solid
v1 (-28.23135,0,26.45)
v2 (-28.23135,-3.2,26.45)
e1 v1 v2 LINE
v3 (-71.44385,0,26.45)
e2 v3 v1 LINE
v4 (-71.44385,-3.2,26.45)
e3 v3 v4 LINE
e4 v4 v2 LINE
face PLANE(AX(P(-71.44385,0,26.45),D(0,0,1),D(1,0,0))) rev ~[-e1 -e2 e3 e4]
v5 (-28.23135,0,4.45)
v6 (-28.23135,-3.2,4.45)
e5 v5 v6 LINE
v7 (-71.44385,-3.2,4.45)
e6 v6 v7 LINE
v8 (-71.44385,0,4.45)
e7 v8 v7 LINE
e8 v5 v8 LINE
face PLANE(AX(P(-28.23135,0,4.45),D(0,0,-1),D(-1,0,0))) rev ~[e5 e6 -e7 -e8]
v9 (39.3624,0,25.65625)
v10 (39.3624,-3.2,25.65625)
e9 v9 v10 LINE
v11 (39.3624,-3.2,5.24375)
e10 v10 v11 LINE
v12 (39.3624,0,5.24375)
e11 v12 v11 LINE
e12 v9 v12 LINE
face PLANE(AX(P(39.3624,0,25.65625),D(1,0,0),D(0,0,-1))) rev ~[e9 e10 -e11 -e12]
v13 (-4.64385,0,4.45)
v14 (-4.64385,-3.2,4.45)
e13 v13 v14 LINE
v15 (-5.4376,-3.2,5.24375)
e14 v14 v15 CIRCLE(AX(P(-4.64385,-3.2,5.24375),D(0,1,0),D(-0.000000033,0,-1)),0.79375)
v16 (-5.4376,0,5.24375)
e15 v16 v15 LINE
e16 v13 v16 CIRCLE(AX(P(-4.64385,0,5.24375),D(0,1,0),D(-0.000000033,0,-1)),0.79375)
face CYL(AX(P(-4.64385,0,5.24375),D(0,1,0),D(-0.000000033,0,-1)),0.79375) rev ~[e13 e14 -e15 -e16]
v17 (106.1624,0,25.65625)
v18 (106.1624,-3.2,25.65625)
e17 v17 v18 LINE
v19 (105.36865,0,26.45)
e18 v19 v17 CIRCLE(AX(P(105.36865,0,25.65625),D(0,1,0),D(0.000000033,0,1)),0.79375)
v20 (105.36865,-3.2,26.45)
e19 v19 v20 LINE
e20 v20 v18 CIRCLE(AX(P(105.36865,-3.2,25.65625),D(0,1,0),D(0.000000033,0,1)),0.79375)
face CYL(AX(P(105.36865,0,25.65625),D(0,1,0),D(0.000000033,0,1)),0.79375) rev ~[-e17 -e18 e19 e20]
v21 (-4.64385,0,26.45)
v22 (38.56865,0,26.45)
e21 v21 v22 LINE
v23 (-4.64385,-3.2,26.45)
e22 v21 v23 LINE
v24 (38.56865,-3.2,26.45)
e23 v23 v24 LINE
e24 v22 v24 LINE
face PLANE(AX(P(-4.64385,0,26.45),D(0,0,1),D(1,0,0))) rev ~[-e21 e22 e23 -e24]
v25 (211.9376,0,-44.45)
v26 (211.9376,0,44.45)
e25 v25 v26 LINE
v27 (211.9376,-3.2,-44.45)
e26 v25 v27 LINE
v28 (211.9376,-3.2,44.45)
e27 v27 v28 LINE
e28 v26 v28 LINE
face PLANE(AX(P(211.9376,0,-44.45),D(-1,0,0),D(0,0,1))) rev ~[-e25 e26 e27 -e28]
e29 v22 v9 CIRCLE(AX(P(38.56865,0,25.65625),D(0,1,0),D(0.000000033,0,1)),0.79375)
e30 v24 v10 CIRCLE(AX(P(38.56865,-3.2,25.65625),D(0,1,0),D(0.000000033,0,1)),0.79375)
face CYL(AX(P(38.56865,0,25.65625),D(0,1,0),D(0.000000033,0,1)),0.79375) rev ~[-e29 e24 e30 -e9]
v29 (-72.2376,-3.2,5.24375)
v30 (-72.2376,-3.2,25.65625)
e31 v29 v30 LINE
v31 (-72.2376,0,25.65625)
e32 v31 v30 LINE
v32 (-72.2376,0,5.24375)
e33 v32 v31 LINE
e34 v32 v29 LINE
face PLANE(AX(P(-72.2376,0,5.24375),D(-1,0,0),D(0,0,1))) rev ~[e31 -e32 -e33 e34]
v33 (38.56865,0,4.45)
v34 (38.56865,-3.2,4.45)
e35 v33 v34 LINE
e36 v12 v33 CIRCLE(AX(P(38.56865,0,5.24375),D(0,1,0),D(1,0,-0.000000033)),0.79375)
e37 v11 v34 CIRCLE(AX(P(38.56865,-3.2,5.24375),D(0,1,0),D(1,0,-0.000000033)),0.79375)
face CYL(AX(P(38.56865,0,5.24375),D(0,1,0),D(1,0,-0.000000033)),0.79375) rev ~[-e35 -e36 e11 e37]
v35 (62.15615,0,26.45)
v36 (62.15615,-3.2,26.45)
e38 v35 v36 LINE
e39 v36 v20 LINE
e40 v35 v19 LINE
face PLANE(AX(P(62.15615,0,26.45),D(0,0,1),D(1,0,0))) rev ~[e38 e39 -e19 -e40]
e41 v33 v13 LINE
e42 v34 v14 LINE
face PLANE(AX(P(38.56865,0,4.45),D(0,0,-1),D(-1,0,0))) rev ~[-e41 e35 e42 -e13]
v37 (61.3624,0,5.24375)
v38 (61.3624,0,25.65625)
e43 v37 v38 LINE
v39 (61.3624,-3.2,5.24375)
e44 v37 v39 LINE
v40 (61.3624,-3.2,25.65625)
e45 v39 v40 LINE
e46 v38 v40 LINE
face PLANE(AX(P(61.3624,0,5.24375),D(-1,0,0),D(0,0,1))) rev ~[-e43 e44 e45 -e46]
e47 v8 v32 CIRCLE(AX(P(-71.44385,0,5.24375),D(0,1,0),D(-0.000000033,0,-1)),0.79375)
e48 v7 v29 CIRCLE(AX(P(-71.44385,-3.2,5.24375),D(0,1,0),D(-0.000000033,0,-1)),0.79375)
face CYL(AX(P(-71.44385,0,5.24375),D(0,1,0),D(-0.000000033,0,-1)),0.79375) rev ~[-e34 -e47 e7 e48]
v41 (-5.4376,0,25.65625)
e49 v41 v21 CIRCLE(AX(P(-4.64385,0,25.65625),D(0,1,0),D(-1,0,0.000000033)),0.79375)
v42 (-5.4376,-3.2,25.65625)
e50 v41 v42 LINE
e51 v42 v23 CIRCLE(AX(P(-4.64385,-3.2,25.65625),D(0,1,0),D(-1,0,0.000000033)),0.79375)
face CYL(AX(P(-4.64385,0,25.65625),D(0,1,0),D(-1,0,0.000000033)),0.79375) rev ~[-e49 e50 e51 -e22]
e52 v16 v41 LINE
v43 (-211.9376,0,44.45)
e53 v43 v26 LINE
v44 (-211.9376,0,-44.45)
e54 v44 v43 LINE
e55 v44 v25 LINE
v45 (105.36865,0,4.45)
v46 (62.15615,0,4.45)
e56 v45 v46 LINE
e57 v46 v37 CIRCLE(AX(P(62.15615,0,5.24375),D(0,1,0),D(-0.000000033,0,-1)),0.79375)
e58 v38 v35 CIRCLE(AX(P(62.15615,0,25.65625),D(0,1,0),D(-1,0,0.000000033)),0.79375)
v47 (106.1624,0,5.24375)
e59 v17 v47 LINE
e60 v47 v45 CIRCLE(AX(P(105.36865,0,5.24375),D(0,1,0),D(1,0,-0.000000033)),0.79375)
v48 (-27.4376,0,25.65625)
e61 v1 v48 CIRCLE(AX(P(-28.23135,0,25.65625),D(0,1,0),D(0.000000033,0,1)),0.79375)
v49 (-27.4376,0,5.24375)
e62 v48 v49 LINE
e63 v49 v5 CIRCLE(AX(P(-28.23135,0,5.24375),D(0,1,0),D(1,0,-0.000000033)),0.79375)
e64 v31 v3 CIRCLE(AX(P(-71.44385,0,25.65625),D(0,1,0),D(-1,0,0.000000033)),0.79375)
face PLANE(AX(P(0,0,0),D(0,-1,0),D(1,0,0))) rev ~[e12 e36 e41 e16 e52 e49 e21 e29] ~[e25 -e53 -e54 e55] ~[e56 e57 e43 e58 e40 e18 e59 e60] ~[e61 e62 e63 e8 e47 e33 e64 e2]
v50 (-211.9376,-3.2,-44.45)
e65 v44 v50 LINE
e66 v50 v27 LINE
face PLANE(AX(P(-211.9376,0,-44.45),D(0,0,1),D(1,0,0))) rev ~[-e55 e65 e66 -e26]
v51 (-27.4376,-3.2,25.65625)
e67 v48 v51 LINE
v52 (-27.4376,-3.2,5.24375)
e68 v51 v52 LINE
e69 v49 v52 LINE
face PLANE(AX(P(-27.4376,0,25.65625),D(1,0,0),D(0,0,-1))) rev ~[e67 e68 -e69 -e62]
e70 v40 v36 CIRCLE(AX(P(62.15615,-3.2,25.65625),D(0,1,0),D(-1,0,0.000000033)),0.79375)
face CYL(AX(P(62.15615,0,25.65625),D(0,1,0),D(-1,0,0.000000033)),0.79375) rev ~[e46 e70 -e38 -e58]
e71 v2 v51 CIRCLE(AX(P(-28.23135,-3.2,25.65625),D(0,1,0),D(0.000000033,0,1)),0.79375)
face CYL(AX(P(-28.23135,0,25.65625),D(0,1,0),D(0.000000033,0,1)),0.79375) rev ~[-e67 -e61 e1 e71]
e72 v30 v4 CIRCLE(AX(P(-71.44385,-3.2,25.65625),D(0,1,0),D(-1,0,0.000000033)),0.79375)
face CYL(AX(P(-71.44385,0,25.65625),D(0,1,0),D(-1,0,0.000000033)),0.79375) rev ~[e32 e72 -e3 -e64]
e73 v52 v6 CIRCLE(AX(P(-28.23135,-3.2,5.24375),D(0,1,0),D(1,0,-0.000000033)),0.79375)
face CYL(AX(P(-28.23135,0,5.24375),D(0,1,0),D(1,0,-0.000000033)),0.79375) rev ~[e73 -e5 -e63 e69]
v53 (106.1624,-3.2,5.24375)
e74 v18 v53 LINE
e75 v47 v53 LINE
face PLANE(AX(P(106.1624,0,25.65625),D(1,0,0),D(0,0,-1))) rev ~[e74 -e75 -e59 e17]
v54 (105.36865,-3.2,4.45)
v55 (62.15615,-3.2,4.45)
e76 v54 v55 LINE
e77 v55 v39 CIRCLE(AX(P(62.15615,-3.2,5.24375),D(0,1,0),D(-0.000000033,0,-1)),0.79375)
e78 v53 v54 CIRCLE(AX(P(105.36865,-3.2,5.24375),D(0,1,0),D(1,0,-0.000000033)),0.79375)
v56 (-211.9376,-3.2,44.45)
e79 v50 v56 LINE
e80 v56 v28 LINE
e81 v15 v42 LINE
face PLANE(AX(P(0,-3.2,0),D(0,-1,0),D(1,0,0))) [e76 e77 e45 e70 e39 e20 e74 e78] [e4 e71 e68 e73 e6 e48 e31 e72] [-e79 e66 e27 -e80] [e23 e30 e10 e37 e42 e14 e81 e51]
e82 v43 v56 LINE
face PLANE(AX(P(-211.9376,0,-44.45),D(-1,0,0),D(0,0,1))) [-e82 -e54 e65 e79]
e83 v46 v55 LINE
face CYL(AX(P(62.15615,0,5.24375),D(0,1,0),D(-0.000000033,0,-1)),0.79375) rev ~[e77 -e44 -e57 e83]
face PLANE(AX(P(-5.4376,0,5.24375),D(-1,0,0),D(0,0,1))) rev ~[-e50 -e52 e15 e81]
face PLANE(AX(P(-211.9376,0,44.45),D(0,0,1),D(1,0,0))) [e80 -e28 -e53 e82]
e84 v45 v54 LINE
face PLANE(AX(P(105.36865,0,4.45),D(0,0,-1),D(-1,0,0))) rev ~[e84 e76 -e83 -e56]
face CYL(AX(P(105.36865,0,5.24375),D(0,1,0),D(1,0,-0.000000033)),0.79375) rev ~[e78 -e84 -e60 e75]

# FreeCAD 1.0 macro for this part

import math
import FreeCAD as App
import Part
import Sketcher
from FreeCAD import Vector
Q = App.Units.Quantity


def add_polygon(sketch, points):
    """Adds a closed chain of lines whose ends are joined by coincident constraints."""
    first, n = sketch.GeometryCount, len(points)
    for a, b in zip(points, points[1:] + points[:1]):
        sketch.addGeometry(Part.LineSegment(App.Vector(*a, 0), App.Vector(*b, 0)), False)
    for i in range(n):
        sketch.addConstraint(Sketcher.Constraint("Coincident", first + i, 2, first + (i + 1) % n, 1))

doc = App.newDocument("Part")
params = doc.addObject("Spreadsheet::Sheet", "Params")
for row, (alias, value) in enumerate([
    ("sketch1_height", "3.5 in"),
    ("sketch1_radius", "0.03125 in"),
    ("sketch1_width", "16.688 in"),
    ("pad1_length", "3.2 mm"),
], start=1):
    params.set(f"A{row}", alias)
    params.set(f"B{row}", "=" + value)
    params.setAlias(f"B{row}", alias)

body = doc.addObject("PartDesign::Body", "Body")

# Sketch on XZ plane
sketch1 = doc.addObject("Sketcher::SketchObject", "Sketch")
body.addObject(sketch1)
sketch1.AttachmentSupport = (doc.XZ_Plane, [""])
sketch1.MapMode = "FlatFace"
add_polygon(sketch1, [(-211.9376, 44.45), (-211.9376, -44.45), (211.9376, -44.45), (211.9376, 44.45)])  # lines 0-3
sketch1.addGeometry(Part.LineSegment(Vector(-5.4376, 5.24375, 0), Vector(-5.4376, 25.65625, 0)), False)  # 4
sketch1.addGeometry(Part.ArcOfCircle(Part.Circle(Vector(-4.64385, 25.65625, 0), Vector(0, 0, 1), 0.79375), math.radians(90.000002), math.radians(179.999998)), False)  # 5
sketch1.addGeometry(Part.LineSegment(Vector(-4.64385, 26.45, 0), Vector(38.56865, 26.45, 0)), False)  # 6
sketch1.addGeometry(Part.ArcOfCircle(Part.Circle(Vector(38.56865, 25.65625, 0), Vector(0, 0, 1), 0.79375), math.radians(0.000002), math.radians(89.999998)), False)  # 7
sketch1.addGeometry(Part.LineSegment(Vector(39.3624, 25.65625, 0), Vector(39.3624, 5.24375, 0)), False)  # 8
sketch1.addGeometry(Part.ArcOfCircle(Part.Circle(Vector(38.56865, 5.24375, 0), Vector(0, 0, 1), 0.79375), math.radians(-89.999998), math.radians(-0.000002)), False)  # 9
sketch1.addGeometry(Part.LineSegment(Vector(38.56865, 4.45, 0), Vector(-4.64385, 4.45, 0)), False)  # 10
sketch1.addGeometry(Part.ArcOfCircle(Part.Circle(Vector(-4.64385, 5.24375, 0), Vector(0, 0, 1), 0.79375), math.radians(-179.999998), math.radians(-90.000002)), False)  # 11
sketch1.addGeometry(Part.LineSegment(Vector(61.3624, 5.24375, 0), Vector(61.3624, 25.65625, 0)), False)  # 12
sketch1.addGeometry(Part.ArcOfCircle(Part.Circle(Vector(62.15615, 25.65625, 0), Vector(0, 0, 1), 0.79375), math.radians(90.000002), math.radians(179.999998)), False)  # 13
sketch1.addGeometry(Part.LineSegment(Vector(62.15615, 26.45, 0), Vector(105.36865, 26.45, 0)), False)  # 14
sketch1.addGeometry(Part.ArcOfCircle(Part.Circle(Vector(105.36865, 25.65625, 0), Vector(0, 0, 1), 0.79375), math.radians(0.000002), math.radians(89.999998)), False)  # 15
sketch1.addGeometry(Part.LineSegment(Vector(106.1624, 25.65625, 0), Vector(106.1624, 5.24375, 0)), False)  # 16
sketch1.addGeometry(Part.ArcOfCircle(Part.Circle(Vector(105.36865, 5.24375, 0), Vector(0, 0, 1), 0.79375), math.radians(-89.999998), math.radians(-0.000002)), False)  # 17
sketch1.addGeometry(Part.LineSegment(Vector(105.36865, 4.45, 0), Vector(62.15615, 4.45, 0)), False)  # 18
sketch1.addGeometry(Part.ArcOfCircle(Part.Circle(Vector(62.15615, 5.24375, 0), Vector(0, 0, 1), 0.79375), math.radians(-179.999998), math.radians(-90.000002)), False)  # 19
sketch1.addGeometry(Part.LineSegment(Vector(-72.2376, 5.24375, 0), Vector(-72.2376, 25.65625, 0)), False)  # 20
sketch1.addGeometry(Part.ArcOfCircle(Part.Circle(Vector(-71.44385, 25.65625, 0), Vector(0, 0, 1), 0.79375), math.radians(90.000002), math.radians(179.999998)), False)  # 21
sketch1.addGeometry(Part.LineSegment(Vector(-71.44385, 26.45, 0), Vector(-28.23135, 26.45, 0)), False)  # 22
sketch1.addGeometry(Part.ArcOfCircle(Part.Circle(Vector(-28.23135, 25.65625, 0), Vector(0, 0, 1), 0.79375), math.radians(0.000002), math.radians(89.999998)), False)  # 23
sketch1.addGeometry(Part.LineSegment(Vector(-27.4376, 25.65625, 0), Vector(-27.4376, 5.24375, 0)), False)  # 24
sketch1.addGeometry(Part.ArcOfCircle(Part.Circle(Vector(-28.23135, 5.24375, 0), Vector(0, 0, 1), 0.79375), math.radians(-89.999998), math.radians(-0.000002)), False)  # 25
sketch1.addGeometry(Part.LineSegment(Vector(-28.23135, 4.45, 0), Vector(-71.44385, 4.45, 0)), False)  # 26
sketch1.addGeometry(Part.ArcOfCircle(Part.Circle(Vector(-71.44385, 5.24375, 0), Vector(0, 0, 1), 0.79375), math.radians(-179.999998), math.radians(-90.000002)), False)  # 27
sketch1.addConstraint([
    Sketcher.Constraint("Tangent", 4, 2, 5, 2),
    Sketcher.Constraint("Tangent", 5, 1, 6, 1),
    Sketcher.Constraint("Tangent", 6, 2, 7, 2),
    Sketcher.Constraint("Tangent", 7, 1, 8, 1),
    Sketcher.Constraint("Tangent", 8, 2, 9, 2),
    Sketcher.Constraint("Tangent", 9, 1, 10, 1),
    Sketcher.Constraint("Tangent", 10, 2, 11, 2),
    Sketcher.Constraint("Tangent", 11, 1, 4, 1),
    Sketcher.Constraint("Tangent", 12, 2, 13, 2),
    Sketcher.Constraint("Tangent", 13, 1, 14, 1),
    Sketcher.Constraint("Tangent", 14, 2, 15, 2),
    Sketcher.Constraint("Tangent", 15, 1, 16, 1),
    Sketcher.Constraint("Tangent", 16, 2, 17, 2),
    Sketcher.Constraint("Tangent", 17, 1, 18, 1),
    Sketcher.Constraint("Tangent", 18, 2, 19, 2),
    Sketcher.Constraint("Tangent", 19, 1, 12, 1),
    Sketcher.Constraint("Tangent", 20, 2, 21, 2),
    Sketcher.Constraint("Tangent", 21, 1, 22, 1),
    Sketcher.Constraint("Tangent", 22, 2, 23, 2),
    Sketcher.Constraint("Tangent", 23, 1, 24, 1),
    Sketcher.Constraint("Tangent", 24, 2, 25, 2),
    Sketcher.Constraint("Tangent", 25, 1, 26, 1),
    Sketcher.Constraint("Tangent", 26, 2, 27, 2),
    Sketcher.Constraint("Tangent", 27, 1, 20, 1),
    Sketcher.Constraint("Vertical", 0),
    Sketcher.Constraint("Horizontal", 1),
    Sketcher.Constraint("Vertical", 2),
    Sketcher.Constraint("Horizontal", 3),
    Sketcher.Constraint("Vertical", 4),
    Sketcher.Constraint("Horizontal", 6),
    Sketcher.Constraint("Vertical", 8),
    Sketcher.Constraint("Horizontal", 10),
    Sketcher.Constraint("Vertical", 12),
    Sketcher.Constraint("Horizontal", 14),
    Sketcher.Constraint("Vertical", 16),
    Sketcher.Constraint("Horizontal", 18),
    Sketcher.Constraint("Vertical", 20),
    Sketcher.Constraint("Horizontal", 22),
    Sketcher.Constraint("Vertical", 24),
    Sketcher.Constraint("Horizontal", 26),
    Sketcher.Constraint("Equal", 5, 7),
    Sketcher.Constraint("Equal", 7, 9),
    Sketcher.Constraint("Equal", 9, 11),
    Sketcher.Constraint("Equal", 11, 13),
    Sketcher.Constraint("Equal", 13, 15),
    Sketcher.Constraint("Equal", 15, 17),
    Sketcher.Constraint("Equal", 17, 19),
    Sketcher.Constraint("Equal", 19, 21),
    Sketcher.Constraint("Equal", 21, 23),
    Sketcher.Constraint("Equal", 23, 25),
    Sketcher.Constraint("Equal", 25, 27),
    Sketcher.Constraint("Symmetric", 0, 2, 2, 2, -1, 1),
    Sketcher.Constraint("Horizontal", 7, 3, 13, 3),
    Sketcher.Constraint("Horizontal", 11, 3, 17, 3),
    Sketcher.Constraint("Horizontal", 15, 3, 21, 3),
    Sketcher.Constraint("Horizontal", 19, 3, 25, 3),
    Sketcher.Constraint("Equal", 10, 14),
    Sketcher.Constraint("Equal", 18, 22),
    Sketcher.Constraint("DistanceY", 0, 2, 0, 1, Q("3.5 in")),
    Sketcher.Constraint("Radius", 5, Q("0.03125 in")),
    Sketcher.Constraint("DistanceX", 1, 1, 1, 2, Q("16.688 in")),
    Sketcher.Constraint("DistanceX", 20, 2, -1, 1, Q("2.844 in")),
    Sketcher.Constraint("DistanceX", 6, 1, 6, 2, Q("43.2125 mm")),
    Sketcher.Constraint("DistanceY", 4, 1, 4, 2, Q("20.4125 mm")),
    Sketcher.Constraint("DistanceX", 4, 2, -1, 1, Q("5.4376 mm")),
    Sketcher.Constraint("DistanceY", -1, 1, 5, 1, Q("26.45 mm")),
    Sketcher.Constraint("DistanceX", -1, 1, 12, 2, Q("61.3624 mm")),
])
sketch1.setExpression("Constraints[62]", "Params.sketch1_height")
sketch1.setExpression("Constraints[63]", "Params.sketch1_radius")
sketch1.setExpression("Constraints[64]", "Params.sketch1_width")
pad1 = doc.addObject("PartDesign::Pad", "Pad")
body.addObject(pad1)
pad1.Profile = sketch1
pad1.setExpression("Length", "Params.pad1_length")

doc.recompute()
